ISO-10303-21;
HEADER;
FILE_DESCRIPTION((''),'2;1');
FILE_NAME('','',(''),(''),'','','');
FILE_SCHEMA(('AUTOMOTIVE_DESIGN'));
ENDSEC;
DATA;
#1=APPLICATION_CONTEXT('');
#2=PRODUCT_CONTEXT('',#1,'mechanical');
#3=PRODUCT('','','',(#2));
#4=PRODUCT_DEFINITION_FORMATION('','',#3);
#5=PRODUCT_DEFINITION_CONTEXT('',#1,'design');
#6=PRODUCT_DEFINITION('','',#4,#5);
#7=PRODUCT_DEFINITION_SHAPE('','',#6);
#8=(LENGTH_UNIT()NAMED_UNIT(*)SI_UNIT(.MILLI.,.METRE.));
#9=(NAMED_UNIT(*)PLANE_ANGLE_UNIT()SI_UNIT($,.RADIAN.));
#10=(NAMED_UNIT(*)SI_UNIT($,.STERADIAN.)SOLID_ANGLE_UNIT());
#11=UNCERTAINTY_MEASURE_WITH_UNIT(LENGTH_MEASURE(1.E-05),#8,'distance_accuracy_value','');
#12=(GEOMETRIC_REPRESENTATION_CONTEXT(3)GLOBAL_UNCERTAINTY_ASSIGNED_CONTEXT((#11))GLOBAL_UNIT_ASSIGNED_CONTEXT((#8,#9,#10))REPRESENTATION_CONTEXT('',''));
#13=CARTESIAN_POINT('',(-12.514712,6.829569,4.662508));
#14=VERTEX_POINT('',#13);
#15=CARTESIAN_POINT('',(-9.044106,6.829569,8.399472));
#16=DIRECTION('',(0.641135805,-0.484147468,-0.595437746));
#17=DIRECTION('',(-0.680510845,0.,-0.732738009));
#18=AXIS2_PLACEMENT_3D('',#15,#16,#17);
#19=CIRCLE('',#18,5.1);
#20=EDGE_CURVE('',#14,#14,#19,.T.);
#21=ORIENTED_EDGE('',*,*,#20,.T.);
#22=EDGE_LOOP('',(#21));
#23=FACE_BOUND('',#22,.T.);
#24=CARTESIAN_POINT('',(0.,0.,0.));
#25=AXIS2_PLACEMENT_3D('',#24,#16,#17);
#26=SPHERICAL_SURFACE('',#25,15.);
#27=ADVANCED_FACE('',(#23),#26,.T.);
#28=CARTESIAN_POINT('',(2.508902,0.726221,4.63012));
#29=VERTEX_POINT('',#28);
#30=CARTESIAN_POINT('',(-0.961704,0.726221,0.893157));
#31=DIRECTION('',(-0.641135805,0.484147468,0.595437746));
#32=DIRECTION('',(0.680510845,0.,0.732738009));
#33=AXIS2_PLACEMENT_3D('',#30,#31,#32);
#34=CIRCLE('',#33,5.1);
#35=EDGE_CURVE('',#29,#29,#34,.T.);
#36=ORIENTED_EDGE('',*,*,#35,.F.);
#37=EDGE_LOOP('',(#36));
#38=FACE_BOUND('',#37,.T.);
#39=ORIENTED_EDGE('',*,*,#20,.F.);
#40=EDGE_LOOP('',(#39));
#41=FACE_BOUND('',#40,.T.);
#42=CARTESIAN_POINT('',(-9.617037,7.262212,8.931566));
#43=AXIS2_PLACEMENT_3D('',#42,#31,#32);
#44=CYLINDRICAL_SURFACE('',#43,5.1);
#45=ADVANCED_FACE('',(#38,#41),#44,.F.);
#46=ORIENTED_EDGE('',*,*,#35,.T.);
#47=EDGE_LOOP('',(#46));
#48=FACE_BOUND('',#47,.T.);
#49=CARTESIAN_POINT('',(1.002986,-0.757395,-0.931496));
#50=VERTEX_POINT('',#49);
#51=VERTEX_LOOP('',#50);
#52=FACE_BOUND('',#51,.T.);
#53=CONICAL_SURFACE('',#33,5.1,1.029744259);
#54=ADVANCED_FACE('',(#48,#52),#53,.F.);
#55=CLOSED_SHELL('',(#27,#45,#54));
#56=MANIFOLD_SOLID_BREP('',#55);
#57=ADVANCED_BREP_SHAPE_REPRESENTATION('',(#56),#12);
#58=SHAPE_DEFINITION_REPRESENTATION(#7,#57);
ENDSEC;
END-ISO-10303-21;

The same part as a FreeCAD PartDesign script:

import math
import FreeCAD as App
import Part
import Sketcher
Q = App.Units.Quantity

doc = App.newDocument("Part")
body = doc.addObject("PartDesign::Body", "Body")

# Sketch on XY plane
sketch1 = body.newObject("Sketcher::SketchObject", "Sketch")
sketch1.AttachmentSupport = (doc.getObject("XY_Plane"), [""])
sketch1.MapMode = "FlatFace"
sketch1.addGeometry([
    Part.LineSegment(App.Vector(0, 15, 0), App.Vector(0, -15, 0)),
    Part.ArcOfCircle(Part.Circle(App.Vector(0, 0, 0), App.Vector(0, 0, 1), 15), math.radians(-90), math.radians(90)),
], False)
sketch1.addConstraint([
    Sketcher.Constraint("Coincident", 0, 1, 1, 2),
    Sketcher.Constraint("Coincident", 1, 1, 0, 2),
    Sketcher.Constraint("Vertical", 0),
    Sketcher.Constraint("Coincident", 1, 3, -1, 1),
    Sketcher.Constraint("PointOnObject", 0, 1, -2),
    Sketcher.Constraint("Radius", 1, 15.0),
])
revolution = body.newObject("PartDesign::Revolution", "Revolution")
revolution.Profile = sketch1
revolution.ReferenceAxis = (sketch1, ["V_Axis"])
revolution.Angle = 360

# Sketch on an angled plane
sketch2 = body.newObject("Sketcher::SketchObject", "Sketch001")
sketch2.Placement = App.Placement(App.Vector(-9.617037, 7.262212, 8.931566), App.Rotation(App.Vector(0.050610565, -0.747524551, 0.662303266), App.Vector(0.641135805, -0.484147468, -0.595437746), App.Vector(0.765756783, 0.454761778, 0.454761778), "ZXY"))
sketch2.addGeometry([
    Part.LineSegment(App.Vector(0, 17, 0), App.Vector(0, 0, 0)),
    Part.LineSegment(App.Vector(0, 0, 0), App.Vector(5, 0, 0)),
    Part.LineSegment(App.Vector(5, 0, 0), App.Vector(5, 13, 0)),
    Part.LineSegment(App.Vector(5, 13, 0), App.Vector(0, 17, 0)),
], False)
sketch2.addConstraint([
    Sketcher.Constraint("Coincident", 0, 2, 1, 1),
    Sketcher.Constraint("Coincident", 1, 2, 2, 1),
    Sketcher.Constraint("Coincident", 2, 2, 3, 1),
    Sketcher.Constraint("Coincident", 3, 2, 0, 1),
    Sketcher.Constraint("Vertical", 0),
    Sketcher.Constraint("Horizontal", 1),
    Sketcher.Constraint("Vertical", 2),
    Sketcher.Constraint("Coincident", 0, 2, -1, 1),
    Sketcher.Constraint("Angle", 3, Q("149 deg")),
    Sketcher.Constraint("DistanceX", 1, 1, 1, 2, 5.1),
    Sketcher.Constraint("DistanceY", 2, 1, 2, 2, 13.5),
])
groove = body.newObject("PartDesign::Groove", "Groove")
groove.Profile = sketch2
groove.ReferenceAxis = (sketch2, ["V_Axis"])
groove.Angle = 360

doc.recompute()
